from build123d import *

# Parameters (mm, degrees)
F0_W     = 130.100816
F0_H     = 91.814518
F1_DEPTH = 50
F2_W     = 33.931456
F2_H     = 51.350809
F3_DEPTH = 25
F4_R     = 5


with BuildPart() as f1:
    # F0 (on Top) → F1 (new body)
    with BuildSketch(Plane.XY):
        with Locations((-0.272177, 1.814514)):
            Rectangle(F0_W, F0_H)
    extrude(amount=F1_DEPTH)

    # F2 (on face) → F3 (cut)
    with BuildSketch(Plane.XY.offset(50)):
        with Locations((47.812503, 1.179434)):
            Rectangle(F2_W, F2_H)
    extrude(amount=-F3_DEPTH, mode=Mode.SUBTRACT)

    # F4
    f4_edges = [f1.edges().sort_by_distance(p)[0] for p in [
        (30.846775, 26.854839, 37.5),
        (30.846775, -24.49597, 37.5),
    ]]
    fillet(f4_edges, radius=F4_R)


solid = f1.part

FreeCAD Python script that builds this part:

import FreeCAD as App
import Part
import Sketcher
Q = App.Units.Quantity


def edges_at(feature, points):
    """Names of the edges that pass closest to the given points."""
    edges = feature.Shape.Edges
    near = lambda p: min(range(len(edges)), key=lambda i: edges[i].distToShape(Part.Vertex(*p))[0])
    return sorted({f"Edge{near(p) + 1}" for p in points})


def add_polygon(sketch, points):
    """Adds a closed chain of lines whose ends are joined by coincident constraints."""
    first, n = sketch.GeometryCount, len(points)
    for a, b in zip(points, points[1:] + points[:1]):
        sketch.addGeometry(Part.LineSegment(App.Vector(*a, 0), App.Vector(*b, 0)), False)
    for i in range(n):
        sketch.addConstraint(Sketcher.Constraint("Coincident", first + i, 2, first + (i + 1) % n, 1))

doc = App.newDocument("Part")
body = doc.addObject("PartDesign::Body", "Body")

# Sketch on XY plane
sketch1 = body.newObject("Sketcher::SketchObject", "Sketch")
sketch1.AttachmentSupport = (doc.getObject("XY_Plane"), [""])
sketch1.MapMode = "FlatFace"
add_polygon(sketch1, [(-65, 48), (-65, -44), (65, -44), (65, 48)])  # lines 0-3
sketch1.addConstraint([
    Sketcher.Constraint("Vertical", 0),
    Sketcher.Constraint("Horizontal", 1),
    Sketcher.Constraint("Vertical", 2),
    Sketcher.Constraint("Horizontal", 3),
    Sketcher.Constraint("DistanceX", 1, 1, 1, 2, Q("130.100816 mm")),
    Sketcher.Constraint("DistanceY", 0, 2, 0, 1, Q("91.814518 mm")),
    Sketcher.Constraint("DistanceX", -1, 1, 1, 2, Q("64.778231 mm")),
    Sketcher.Constraint("DistanceY", 0, 2, -1, 1, Q("44.092745 mm")),
])
pad1 = body.newObject("PartDesign::Pad", "Pad")
pad1.Profile = sketch1
pad1.Length = 50

# Sketch on XY plane
sketch2 = body.newObject("Sketcher::SketchObject", "Sketch001")
sketch2.AttachmentSupport = (doc.getObject("XY_Plane"), [""])
sketch2.MapMode = "FlatFace"
sketch2.AttachmentOffset = App.Placement(App.Vector(0, 0, 50), App.Rotation())
add_polygon(sketch2, [(31, 27), (31, -24), (65, -24), (65, 27)])  # lines 0-3
sketch2.addConstraint([
    Sketcher.Constraint("Vertical", 0),
    Sketcher.Constraint("Horizontal", 1),
    Sketcher.Constraint("Vertical", 2),
    Sketcher.Constraint("Horizontal", 3),
    Sketcher.Constraint("DistanceY", 0, 2, 0, 1, Q("51.350809 mm")),
    Sketcher.Constraint("DistanceX", 1, 1, 1, 2, Q("33.931456 mm")),
    Sketcher.Constraint("DistanceY", 0, 2, -1, 1, Q("24.49597 mm")),
    Sketcher.Constraint("DistanceX", -1, 1, 1, 2, Q("64.778231 mm")),
])
pocket1 = body.newObject("PartDesign::Pocket", "Pocket")
pocket1.Profile = sketch2
pocket1.Length = 25
doc.recompute()

fillet = body.newObject("PartDesign::Fillet", "Fillet")
fillet.Base = (pocket1, edges_at(pocket1, [(30.847, 26.855, 37.5), (30.847, -24.496, 37.5)]))
fillet.Radius = 5

doc.recompute()
